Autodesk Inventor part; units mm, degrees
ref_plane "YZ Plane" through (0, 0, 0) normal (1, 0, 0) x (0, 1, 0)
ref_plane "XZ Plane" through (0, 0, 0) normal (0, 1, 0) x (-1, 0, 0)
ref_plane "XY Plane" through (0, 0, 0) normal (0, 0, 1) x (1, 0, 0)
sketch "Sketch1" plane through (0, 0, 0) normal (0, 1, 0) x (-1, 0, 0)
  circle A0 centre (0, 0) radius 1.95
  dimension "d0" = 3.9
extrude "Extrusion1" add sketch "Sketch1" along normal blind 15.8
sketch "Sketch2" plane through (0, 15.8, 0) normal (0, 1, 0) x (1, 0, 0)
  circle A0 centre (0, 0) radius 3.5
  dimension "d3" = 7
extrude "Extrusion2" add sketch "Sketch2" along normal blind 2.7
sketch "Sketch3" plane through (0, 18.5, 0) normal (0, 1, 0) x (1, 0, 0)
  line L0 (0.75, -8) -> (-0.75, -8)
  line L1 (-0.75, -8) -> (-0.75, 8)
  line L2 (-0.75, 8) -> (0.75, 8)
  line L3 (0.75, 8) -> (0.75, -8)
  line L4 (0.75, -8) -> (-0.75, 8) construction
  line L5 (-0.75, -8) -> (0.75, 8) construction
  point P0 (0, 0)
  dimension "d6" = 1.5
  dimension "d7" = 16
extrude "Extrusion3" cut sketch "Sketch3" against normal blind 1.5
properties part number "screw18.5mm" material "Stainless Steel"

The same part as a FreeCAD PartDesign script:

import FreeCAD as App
import Part
import Sketcher

V = App.Vector
Q = App.Units.Quantity


def add_polygon(sketch, points):
    """Adds a closed chain of lines whose ends are joined by coincident constraints."""
    first, n = sketch.GeometryCount, len(points)
    for a, b in zip(points, points[1:] + points[:1]):
        sketch.addGeometry(Part.LineSegment(App.Vector(*a, 0), App.Vector(*b, 0)), False)
    for i in range(n):
        sketch.addConstraint(Sketcher.Constraint("Coincident", first + i, 2, first + (i + 1) % n, 1))

doc = App.newDocument("Part")
params = doc.addObject("Spreadsheet::Sheet", "Params")
for row, (alias, value) in enumerate([
    ("sketch1_diameter", "3.9 mm"),
    ("pad1_length", "15.8 mm"),
    ("sketch2_diameter", "7 mm"),
    ("pad2_length", "2.7 mm"),
    ("sketch3_height", "16 mm"),
    ("sketch3_width", "1.5 mm"),
    ("pocket1_length", "1.5 mm"),
], start=1):
    params.set(f"A{row}", alias)
    params.set(f"B{row}", "=" + value)
    params.setAlias(f"B{row}", alias)

body = doc.addObject("PartDesign::Body", "Body")

sketch1 = body.newObject("Sketcher::SketchObject", "Sketch")
sketch1.AttachmentSupport = (doc.getObject("XZ_Plane"), [""])
sketch1.MapMode = "FlatFace"
sketch1.addGeometry(Part.Circle(V(0, 0, 0), V(0, 0, 1), 1.9), False)
sketch1.addConstraint([
    Sketcher.Constraint("Coincident", 0, 3, -1, 1),
    Sketcher.Constraint("Diameter", 0, Q("3.9 mm")),
])
sketch1.setExpression("Constraints[1]", "Params.sketch1_diameter")
pad1 = body.newObject("PartDesign::Pad", "Pad")
pad1.Profile = sketch1
pad1.setExpression("Length", "Params.pad1_length")
pad1.Reversed = True

sketch2 = body.newObject("Sketcher::SketchObject", "Sketch001")
sketch2.AttachmentSupport = (doc.getObject("XZ_Plane"), [""])
sketch2.MapMode = "FlatFace"
sketch2.AttachmentOffset = App.Placement(V(0, 0, -15.8), App.Rotation())
sketch2.addGeometry(Part.Circle(V(0, 0, 0), V(0, 0, 1), 3.5), False)
sketch2.addConstraint([
    Sketcher.Constraint("Coincident", 0, 3, -1, 1),
    Sketcher.Constraint("Diameter", 0, Q("7 mm")),
])
sketch2.setExpression("Constraints[1]", "Params.sketch2_diameter")
pad2 = body.newObject("PartDesign::Pad", "Pad001")
pad2.Profile = sketch2
pad2.setExpression("Length", "Params.pad2_length")
pad2.Reversed = True

sketch3 = body.newObject("Sketcher::SketchObject", "Sketch002")
sketch3.AttachmentSupport = (doc.getObject("XZ_Plane"), [""])
sketch3.MapMode = "FlatFace"
sketch3.AttachmentOffset = App.Placement(V(0, 0, -18.5), App.Rotation())
add_polygon(sketch3, [(-0.8, 8), (0.8, 8), (0.8, -8), (-0.8, -8)])
sketch3.addConstraint([
    Sketcher.Constraint("Horizontal", 0),
    Sketcher.Constraint("Vertical", 1),
    Sketcher.Constraint("Horizontal", 2),
    Sketcher.Constraint("Vertical", 3),
    Sketcher.Constraint("Symmetric", 0, 2, 2, 2, -1, 1),
    Sketcher.Constraint("DistanceY", 1, 2, 1, 1, Q("16 mm")),
    Sketcher.Constraint("DistanceX", 0, 1, 0, 2, Q("1.5 mm")),
])
sketch3.setExpression("Constraints[9]", "Params.sketch3_height")
sketch3.setExpression("Constraints[10]", "Params.sketch3_width")
pocket1 = body.newObject("PartDesign::Pocket", "Pocket")
pocket1.Profile = sketch3
pocket1.setExpression("Length", "Params.pocket1_length")
pocket1.Reversed = True

doc.recompute()
